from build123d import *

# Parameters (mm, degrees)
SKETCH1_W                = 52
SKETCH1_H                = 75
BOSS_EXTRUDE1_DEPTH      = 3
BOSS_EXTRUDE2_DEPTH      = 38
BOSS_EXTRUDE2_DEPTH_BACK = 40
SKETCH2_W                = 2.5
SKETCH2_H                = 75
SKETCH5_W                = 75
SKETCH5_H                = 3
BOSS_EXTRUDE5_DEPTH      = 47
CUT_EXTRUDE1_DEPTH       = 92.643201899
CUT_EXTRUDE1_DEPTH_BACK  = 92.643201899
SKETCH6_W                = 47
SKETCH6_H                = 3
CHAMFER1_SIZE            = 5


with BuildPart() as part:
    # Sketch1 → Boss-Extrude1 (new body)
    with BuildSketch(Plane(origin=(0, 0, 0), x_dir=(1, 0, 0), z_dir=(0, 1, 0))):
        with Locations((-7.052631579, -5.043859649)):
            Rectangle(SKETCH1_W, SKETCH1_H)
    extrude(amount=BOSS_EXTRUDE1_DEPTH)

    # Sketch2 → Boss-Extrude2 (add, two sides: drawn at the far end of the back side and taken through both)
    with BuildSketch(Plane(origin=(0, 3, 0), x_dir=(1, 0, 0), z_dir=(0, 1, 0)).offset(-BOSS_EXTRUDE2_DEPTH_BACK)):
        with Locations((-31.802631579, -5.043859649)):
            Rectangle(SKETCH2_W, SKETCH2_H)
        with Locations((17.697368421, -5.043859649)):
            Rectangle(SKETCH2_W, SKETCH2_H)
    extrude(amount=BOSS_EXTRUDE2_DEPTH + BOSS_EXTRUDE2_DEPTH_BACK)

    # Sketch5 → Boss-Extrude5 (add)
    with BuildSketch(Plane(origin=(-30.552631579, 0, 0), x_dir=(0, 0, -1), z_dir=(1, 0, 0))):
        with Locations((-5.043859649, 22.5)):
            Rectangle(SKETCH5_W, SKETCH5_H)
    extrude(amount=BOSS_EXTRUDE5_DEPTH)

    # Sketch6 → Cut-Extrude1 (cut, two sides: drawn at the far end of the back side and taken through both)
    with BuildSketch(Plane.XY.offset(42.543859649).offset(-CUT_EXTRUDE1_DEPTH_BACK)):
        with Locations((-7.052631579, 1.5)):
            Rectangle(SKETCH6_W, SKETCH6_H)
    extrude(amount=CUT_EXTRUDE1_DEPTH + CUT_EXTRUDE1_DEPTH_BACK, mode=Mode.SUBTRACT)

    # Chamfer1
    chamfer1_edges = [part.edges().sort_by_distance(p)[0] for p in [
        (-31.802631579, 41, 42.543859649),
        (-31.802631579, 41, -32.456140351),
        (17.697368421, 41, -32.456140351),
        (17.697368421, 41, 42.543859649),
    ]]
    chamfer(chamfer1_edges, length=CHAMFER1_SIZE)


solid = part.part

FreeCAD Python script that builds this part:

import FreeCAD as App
import Part
import Sketcher


def edges_at(feature, points):
    """Names of the edges that pass closest to the given points."""
    edges = feature.Shape.Edges
    near = lambda p: min(range(len(edges)), key=lambda i: edges[i].distToShape(Part.Vertex(*p))[0])
    return sorted({f"Edge{near(p) + 1}" for p in points})


def add_polygon(sketch, points):
    """Adds a closed chain of lines whose ends are joined by coincident constraints."""
    first, n = sketch.GeometryCount, len(points)
    for a, b in zip(points, points[1:] + points[:1]):
        sketch.addGeometry(Part.LineSegment(App.Vector(*a, 0), App.Vector(*b, 0)), False)
    for i in range(n):
        sketch.addConstraint(Sketcher.Constraint("Coincident", first + i, 2, first + (i + 1) % n, 1))

doc = App.newDocument("Part")
body = doc.addObject("PartDesign::Body", "Body")

sketch1 = body.newObject("Sketcher::SketchObject", "Sketch")
sketch1.AttachmentSupport = (doc.getObject("XZ_Plane"), [""])
sketch1.MapMode = "FlatFace"
add_polygon(sketch1, [(-33, -32), (-33, 43), (19, 43), (19, -32)])
sketch1.addConstraint(Sketcher.Constraint("Vertical", 0))
sketch1.addConstraint(Sketcher.Constraint("Horizontal", 1))
sketch1.addConstraint(Sketcher.Constraint("Vertical", 2))
sketch1.addConstraint(Sketcher.Constraint("Horizontal", 3))
sketch1.addConstraint(Sketcher.Constraint("DistanceX", 1, 1, 1, 2, 52.0))
sketch1.addConstraint(Sketcher.Constraint("DistanceY", 0, 1, 0, 2, 75.0))
sketch1.addConstraint(Sketcher.Constraint("DistanceX", 0, 2, -1, 1, 33.052632))
sketch1.addConstraint(Sketcher.Constraint("DistanceY", -1, 1, 0, 2, 42.54386))
pad1 = body.newObject("PartDesign::Pad", "Pad")
pad1.Profile = sketch1
pad1.Length = 3
pad1.Reversed = True

sketch2 = body.newObject("Sketcher::SketchObject", "Sketch001")
sketch2.AttachmentSupport = (doc.getObject("XZ_Plane"), [""])
sketch2.MapMode = "FlatFace"
sketch2.AttachmentOffset = App.Placement(App.Vector(0, 0, -3), App.Rotation())
add_polygon(sketch2, [(-33.1, -32.5), (-33.1, 42.5), (-30.6, 42.5), (-30.6, -32.5)])
add_polygon(sketch2, [(16.4, -32.5), (16.4, 42.5), (18.9, 42.5), (18.9, -32.5)])
sketch2.addConstraint(Sketcher.Constraint("Vertical", 0))
sketch2.addConstraint(Sketcher.Constraint("Horizontal", 1))
sketch2.addConstraint(Sketcher.Constraint("Vertical", 2))
sketch2.addConstraint(Sketcher.Constraint("Horizontal", 3))
sketch2.addConstraint(Sketcher.Constraint("Vertical", 4))
sketch2.addConstraint(Sketcher.Constraint("Horizontal", 5))
sketch2.addConstraint(Sketcher.Constraint("Vertical", 6))
sketch2.addConstraint(Sketcher.Constraint("Horizontal", 7))
sketch2.addConstraint(Sketcher.Constraint("Horizontal", 1, 2, 4, 2))
sketch2.addConstraint(Sketcher.Constraint("Horizontal", 3, 2, 6, 2))
sketch2.addConstraint(Sketcher.Constraint("Equal", 3, 5))
sketch2.addConstraint(Sketcher.Constraint("DistanceY", 0, 1, 0, 2, 75.0))
sketch2.addConstraint(Sketcher.Constraint("DistanceX", 1, 1, 1, 2, 2.5))
sketch2.addConstraint(Sketcher.Constraint("DistanceX", 1, 2, 4, 2, 47.0))
sketch2.addConstraint(Sketcher.Constraint("DistanceX", 0, 2, -1, 1, 33.052632))
sketch2.addConstraint(Sketcher.Constraint("DistanceY", -1, 1, 0, 2, 42.54386))
pad2 = body.newObject("PartDesign::Pad", "Pad001")
pad2.Profile = sketch2
pad2.Type = "TwoLengths"
pad2.Length = 38
pad2.Length2 = 40
pad2.Reversed = True

sketch3 = body.newObject("Sketcher::SketchObject", "Sketch002")
sketch3.AttachmentSupport = (doc.getObject("YZ_Plane"), [""])
sketch3.MapMode = "FlatFace"
sketch3.AttachmentOffset = App.Placement(App.Vector(0, 0, -30.552632), App.Rotation())
add_polygon(sketch3, [(24, 42.5), (21, 42.5), (21, -32.5), (24, -32.5)])
sketch3.addConstraint(Sketcher.Constraint("Horizontal", 0))
sketch3.addConstraint(Sketcher.Constraint("Vertical", 1))
sketch3.addConstraint(Sketcher.Constraint("Horizontal", 2))
sketch3.addConstraint(Sketcher.Constraint("Vertical", 3))
sketch3.addConstraint(Sketcher.Constraint("DistanceX", 0, 2, 0, 1, 3.0))
sketch3.addConstraint(Sketcher.Constraint("DistanceY", 1, 2, 1, 1, 75.0))
sketch3.addConstraint(Sketcher.Constraint("DistanceX", -1, 1, 0, 2, 21.0))
sketch3.addConstraint(Sketcher.Constraint("DistanceY", -1, 1, 0, 2, 42.54386))
pad3 = body.newObject("PartDesign::Pad", "Pad002")
pad3.Profile = sketch3
pad3.Length = 47

sketch4 = body.newObject("Sketcher::SketchObject", "Sketch003")
sketch4.AttachmentSupport = (doc.getObject("XY_Plane"), [""])
sketch4.MapMode = "FlatFace"
sketch4.AttachmentOffset = App.Placement(App.Vector(0, 0, 42.54386), App.Rotation())
add_polygon(sketch4, [(-30.6, 3), (-30.6, 0), (16.4, 0), (16.4, 3)])
sketch4.addConstraint(Sketcher.Constraint("Vertical", 0))
sketch4.addConstraint(Sketcher.Constraint("Horizontal", 1))
sketch4.addConstraint(Sketcher.Constraint("Vertical", 2))
sketch4.addConstraint(Sketcher.Constraint("Horizontal", 3))
sketch4.addConstraint(Sketcher.Constraint("PointOnObject", 0, 2, -1))
sketch4.addConstraint(Sketcher.Constraint("DistanceX", 1, 1, 1, 2, 47.0))
sketch4.addConstraint(Sketcher.Constraint("DistanceY", 0, 2, 0, 1, 3.0))
sketch4.addConstraint(Sketcher.Constraint("DistanceX", 0, 2, -1, 1, 30.552632))
pocket1 = body.newObject("PartDesign::Pocket", "Pocket")
pocket1.Profile = sketch4
pocket1.Type = "ThroughAll"
pocket1.Midplane = True
doc.recompute()

chamfer = body.newObject("PartDesign::Chamfer", "Chamfer")
chamfer.Base = (pocket1, edges_at(pocket1, [
    (-31.803, 41, 42.544),
    (-31.803, 41, -32.456),
    (17.697, 41, -32.456),
    (17.697, 41, 42.544),
]))
chamfer.Size = 5

doc.recompute()
